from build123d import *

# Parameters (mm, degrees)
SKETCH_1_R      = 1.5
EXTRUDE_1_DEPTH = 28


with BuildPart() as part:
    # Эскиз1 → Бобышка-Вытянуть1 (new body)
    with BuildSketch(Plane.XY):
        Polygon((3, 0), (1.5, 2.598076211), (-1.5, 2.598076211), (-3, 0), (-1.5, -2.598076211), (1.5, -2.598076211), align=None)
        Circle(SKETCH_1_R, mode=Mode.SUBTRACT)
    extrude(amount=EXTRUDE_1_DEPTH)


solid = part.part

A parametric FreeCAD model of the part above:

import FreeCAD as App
import Part
import Sketcher
Q = App.Units.Quantity

doc = App.newDocument("Part")
body = doc.addObject("PartDesign::Body", "Body")

sketch1 = doc.addObject("Sketcher::SketchObject", "Sketch")
body.addObject(sketch1)
sketch1.AttachmentSupport = (doc.XY_Plane, [""])
sketch1.MapMode = "FlatFace"
sketch1.addGeometry(Part.LineSegment(App.Vector(3, 0, 0), App.Vector(1.5, 2.6, 0)), False)
sketch1.addGeometry(Part.LineSegment(App.Vector(1.5, 2.6, 0), App.Vector(-1.5, 2.6, 0)), False)
sketch1.addGeometry(Part.LineSegment(App.Vector(-1.5, 2.6, 0), App.Vector(-3, 0, 0)), False)
sketch1.addGeometry(Part.LineSegment(App.Vector(-3, 0, 0), App.Vector(-1.5, -2.6, 0)), False)
sketch1.addGeometry(Part.LineSegment(App.Vector(-1.5, -2.6, 0), App.Vector(1.5, -2.6, 0)), False)
sketch1.addGeometry(Part.LineSegment(App.Vector(1.5, -2.6, 0), App.Vector(3, 0, 0)), False)
sketch1.addGeometry(Part.Circle(App.Vector(0, 0, 0), App.Vector(0, 0, 1), 1.5), False)
sketch1.addConstraint(Sketcher.Constraint("Coincident", 0, 2, 1, 1))
sketch1.addConstraint(Sketcher.Constraint("Coincident", 1, 2, 2, 1))
sketch1.addConstraint(Sketcher.Constraint("Coincident", 2, 2, 3, 1))
sketch1.addConstraint(Sketcher.Constraint("Coincident", 3, 2, 4, 1))
sketch1.addConstraint(Sketcher.Constraint("Coincident", 4, 2, 5, 1))
sketch1.addConstraint(Sketcher.Constraint("Coincident", 5, 2, 0, 1))
sketch1.addConstraint(Sketcher.Constraint("Horizontal", 1))
sketch1.addConstraint(Sketcher.Constraint("Horizontal", 4))
sketch1.addConstraint(Sketcher.Constraint("Coincident", 6, 3, -1, 1))
sketch1.addConstraint(Sketcher.Constraint("Symmetric", 0, 2, 3, 2, -1, 1))
sketch1.addConstraint(Sketcher.Constraint("Symmetric", 2, 2, 5, 2, -1, 1))
sketch1.addConstraint(Sketcher.Constraint("PointOnObject", 2, 2, -1))
sketch1.addConstraint(Sketcher.Constraint("Parallel", 2, 5))
sketch1.addConstraint(Sketcher.Constraint("Vertical", 1, 2, 3, 2))
sketch1.addConstraint(Sketcher.Constraint("Diameter", 6, 3.0))
sketch1.addConstraint(Sketcher.Constraint("DistanceX", 1, 2, 1, 1, 3.0))
sketch1.addConstraint(Sketcher.Constraint("Angle", 0, Q("120 deg")))
sketch1.addConstraint(Sketcher.Constraint("Distance", 0, 3.0))
pad1 = doc.addObject("PartDesign::Pad", "Pad")
body.addObject(pad1)
pad1.Profile = sketch1
pad1.Length = 28

doc.recompute()
